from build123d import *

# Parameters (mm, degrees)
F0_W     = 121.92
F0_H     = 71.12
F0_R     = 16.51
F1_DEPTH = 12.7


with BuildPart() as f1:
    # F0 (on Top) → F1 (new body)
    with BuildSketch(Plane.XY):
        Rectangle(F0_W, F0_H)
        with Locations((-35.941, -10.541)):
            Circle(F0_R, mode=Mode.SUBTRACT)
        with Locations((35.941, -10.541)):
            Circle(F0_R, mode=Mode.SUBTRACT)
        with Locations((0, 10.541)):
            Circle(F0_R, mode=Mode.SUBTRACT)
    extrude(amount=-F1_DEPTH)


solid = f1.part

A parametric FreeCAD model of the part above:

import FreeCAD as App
import Part
import Sketcher
Q = App.Units.Quantity

doc = App.newDocument("Part")
body = doc.addObject("PartDesign::Body", "Body")

# Sketch on XY plane
sketch1 = body.newObject("Sketcher::SketchObject", "Sketch")
sketch1.AttachmentSupport = (doc.getObject("XY_Plane"), [""])
sketch1.MapMode = "FlatFace"
sketch1.addGeometry([
    Part.LineSegment(App.Vector(-60.96, 35.56, 0), App.Vector(-60.96, -35.56, 0)),  # 0
    Part.LineSegment(App.Vector(-60.96, -35.56, 0), App.Vector(60.96, -35.56, 0)),  # 1
    Part.LineSegment(App.Vector(60.96, -35.56, 0), App.Vector(60.96, 35.56, 0)),  # 2
    Part.LineSegment(App.Vector(60.96, 35.56, 0), App.Vector(-60.96, 35.56, 0)),  # 3
    Part.Circle(App.Vector(-35.941, -10.541, 0), App.Vector(0, 0, 1), 16.51),  # 4
    Part.Circle(App.Vector(35.941, -10.541, 0), App.Vector(0, 0, 1), 16.51),  # 5
    Part.Circle(App.Vector(0, 10.541, 0), App.Vector(0, 0, 1), 16.51),  # 6
], False)
sketch1.addConstraint([
    Sketcher.Constraint("Coincident", 0, 2, 1, 1),
    Sketcher.Constraint("Coincident", 1, 2, 2, 1),
    Sketcher.Constraint("Coincident", 2, 2, 3, 1),
    Sketcher.Constraint("Coincident", 3, 2, 0, 1),
    Sketcher.Constraint("Vertical", 0),
    Sketcher.Constraint("Horizontal", 1),
    Sketcher.Constraint("Vertical", 2),
    Sketcher.Constraint("Horizontal", 3),
    Sketcher.Constraint("Equal", 4, 5),
    Sketcher.Constraint("Equal", 5, 6),
    Sketcher.Constraint("Symmetric", 0, 2, 2, 2, -1, 1),
    Sketcher.Constraint("Symmetric", 4, 3, 5, 3, -2),
    Sketcher.Constraint("PointOnObject", 6, 3, -2),
    Sketcher.Constraint("Diameter", 4, Q("1.3 in")),
    Sketcher.Constraint("DistanceX", 1, 1, 1, 2, Q("4.8 in")),
    Sketcher.Constraint("DistanceY", 0, 2, 0, 1, Q("2.8 in")),
    Sketcher.Constraint("DistanceX", 4, 3, 5, 3, Q("2.83 in")),
    Sketcher.Constraint("DistanceY", 4, 3, 6, 3, Q("0.83 in")),
    Sketcher.Constraint("DistanceY", 4, 3, -1, 1, Q("0.415 in")),
])
pad1 = body.newObject("PartDesign::Pad", "Pad")
pad1.Profile = sketch1
pad1.Length = Q("0.5 in")
pad1.Reversed = True

doc.recompute()
